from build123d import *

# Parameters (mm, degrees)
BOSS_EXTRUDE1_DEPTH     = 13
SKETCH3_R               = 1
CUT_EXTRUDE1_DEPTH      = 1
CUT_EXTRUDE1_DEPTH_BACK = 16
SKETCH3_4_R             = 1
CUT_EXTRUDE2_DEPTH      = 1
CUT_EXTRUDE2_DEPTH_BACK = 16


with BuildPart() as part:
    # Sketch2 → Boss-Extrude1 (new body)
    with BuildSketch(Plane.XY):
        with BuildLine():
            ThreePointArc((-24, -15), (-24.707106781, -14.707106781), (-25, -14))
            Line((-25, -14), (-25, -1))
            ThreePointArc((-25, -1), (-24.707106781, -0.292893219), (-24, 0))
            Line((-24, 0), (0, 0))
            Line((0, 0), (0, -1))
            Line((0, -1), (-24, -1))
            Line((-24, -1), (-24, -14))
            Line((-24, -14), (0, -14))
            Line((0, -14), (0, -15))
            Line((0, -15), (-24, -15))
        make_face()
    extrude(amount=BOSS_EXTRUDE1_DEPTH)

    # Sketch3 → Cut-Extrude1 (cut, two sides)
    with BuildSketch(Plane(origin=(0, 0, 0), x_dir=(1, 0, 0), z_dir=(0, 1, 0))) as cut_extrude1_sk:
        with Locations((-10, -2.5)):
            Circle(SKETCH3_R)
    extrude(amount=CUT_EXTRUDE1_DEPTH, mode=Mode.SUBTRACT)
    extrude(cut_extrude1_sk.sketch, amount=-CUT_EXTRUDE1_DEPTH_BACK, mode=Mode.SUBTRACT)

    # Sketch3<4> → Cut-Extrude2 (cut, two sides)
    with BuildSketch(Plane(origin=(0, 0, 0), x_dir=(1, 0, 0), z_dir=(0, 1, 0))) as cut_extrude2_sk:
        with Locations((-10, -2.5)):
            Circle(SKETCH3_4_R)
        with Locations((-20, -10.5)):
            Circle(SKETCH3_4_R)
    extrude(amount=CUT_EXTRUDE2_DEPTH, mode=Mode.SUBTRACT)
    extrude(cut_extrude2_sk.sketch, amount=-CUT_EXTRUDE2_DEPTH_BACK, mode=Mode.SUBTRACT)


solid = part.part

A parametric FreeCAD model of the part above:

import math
import FreeCAD as App
import Part
import Sketcher
from FreeCAD import Vector
Q = App.Units.Quantity

doc = App.newDocument("Part")
body = doc.addObject("PartDesign::Body", "Body")

sketch1 = body.newObject("Sketcher::SketchObject", "Sketch")
sketch1.AttachmentSupport = (doc.getObject("XY_Plane"), [""])
sketch1.MapMode = "FlatFace"
sketch1.addGeometry(Part.ArcOfCircle(Part.Circle(Vector(-24, -14, 0), Vector(0, 0, 1), 1), math.radians(-180), math.radians(-90)), False)
sketch1.addGeometry(Part.LineSegment(Vector(-24, -15, 0), Vector(0, -15, 0)), False)
sketch1.addGeometry(Part.LineSegment(Vector(0, -15, 0), Vector(0, -14, 0)), False)
sketch1.addGeometry(Part.LineSegment(Vector(0, -14, 0), Vector(-24, -14, 0)), False)
sketch1.addGeometry(Part.LineSegment(Vector(-24, -14, 0), Vector(-24, -1, 0)), False)
sketch1.addGeometry(Part.LineSegment(Vector(-24, -1, 0), Vector(0, -1, 0)), False)
sketch1.addGeometry(Part.LineSegment(Vector(0, -1, 0), Vector(0, 0, 0)), False)
sketch1.addGeometry(Part.LineSegment(Vector(0, 0, 0), Vector(-24, 0, 0)), False)
sketch1.addGeometry(Part.ArcOfCircle(Part.Circle(Vector(-24, -1, 0), Vector(0, 0, 1), 1), math.radians(90), math.radians(180)), False)
sketch1.addGeometry(Part.LineSegment(Vector(-25, -1, 0), Vector(-25, -14, 0)), False)
sketch1.addConstraint(Sketcher.Constraint("Tangent", 0, 2, 1, 1))
sketch1.addConstraint(Sketcher.Constraint("Coincident", 1, 2, 2, 1))
sketch1.addConstraint(Sketcher.Constraint("Coincident", 2, 2, 3, 1))
sketch1.addConstraint(Sketcher.Constraint("Coincident", 3, 2, 4, 1))
sketch1.addConstraint(Sketcher.Constraint("Coincident", 4, 2, 5, 1))
sketch1.addConstraint(Sketcher.Constraint("Coincident", 5, 2, 6, 1))
sketch1.addConstraint(Sketcher.Constraint("Coincident", 6, 2, 7, 1))
sketch1.addConstraint(Sketcher.Constraint("Tangent", 7, 2, 8, 1))
sketch1.addConstraint(Sketcher.Constraint("Tangent", 8, 2, 9, 1))
sketch1.addConstraint(Sketcher.Constraint("Tangent", 9, 2, 0, 1))
sketch1.addConstraint(Sketcher.Constraint("Horizontal", 1))
sketch1.addConstraint(Sketcher.Constraint("Vertical", 2))
sketch1.addConstraint(Sketcher.Constraint("Horizontal", 3))
sketch1.addConstraint(Sketcher.Constraint("Vertical", 4))
sketch1.addConstraint(Sketcher.Constraint("Horizontal", 5))
sketch1.addConstraint(Sketcher.Constraint("Vertical", 6))
sketch1.addConstraint(Sketcher.Constraint("Horizontal", 7))
sketch1.addConstraint(Sketcher.Constraint("Vertical", 9))
sketch1.addConstraint(Sketcher.Constraint("Coincident", 6, 2, -1, 1))
sketch1.addConstraint(Sketcher.Constraint("Coincident", 3, 2, 0, 3))
sketch1.addConstraint(Sketcher.Constraint("Coincident", 4, 2, 8, 3))
sketch1.addConstraint(Sketcher.Constraint("PointOnObject", 1, 2, -2))
sketch1.addConstraint(Sketcher.Constraint("Radius", 0, Q("1 mm")))
sketch1.addConstraint(Sketcher.Constraint("DistanceX", 1, 1, 1, 2, Q("24 mm")))
sketch1.addConstraint(Sketcher.Constraint("DistanceY", 4, 1, 4, 2, Q("13 mm")))
pad1 = body.newObject("PartDesign::Pad", "Pad")
pad1.Profile = sketch1
pad1.Length = 13

sketch2 = body.newObject("Sketcher::SketchObject", "Sketch001")
sketch2.AttachmentSupport = (doc.getObject("XZ_Plane"), [""])
sketch2.MapMode = "FlatFace"
sketch2.addGeometry(Part.Circle(Vector(-10, 2.5, 0), Vector(0, 0, 1), 1), False)
sketch2.addConstraint(Sketcher.Constraint("Diameter", 0, Q("2 mm")))
sketch2.addConstraint(Sketcher.Constraint("DistanceX", 0, 3, -1, 1, Q("10 mm")))
sketch2.addConstraint(Sketcher.Constraint("DistanceY", -1, 1, 0, 3, Q("2.5 mm")))
pocket1 = body.newObject("PartDesign::Pocket", "Pocket")
pocket1.Profile = sketch2
pocket1.Type = "ThroughAll"
pocket1.Midplane = True

sketch3 = body.newObject("Sketcher::SketchObject", "Sketch002")
sketch3.AttachmentSupport = (doc.getObject("XZ_Plane"), [""])
sketch3.MapMode = "FlatFace"
sketch3.addGeometry(Part.Circle(Vector(-10, 2.5, 0), Vector(0, 0, 1), 1), False)
sketch3.addGeometry(Part.Circle(Vector(-20, 10.5, 0), Vector(0, 0, 1), 1), False)
sketch3.addConstraint(Sketcher.Constraint("Equal", 0, 1))
sketch3.addConstraint(Sketcher.Constraint("Diameter", 0, Q("2 mm")))
sketch3.addConstraint(Sketcher.Constraint("DistanceX", 0, 3, -1, 1, Q("10 mm")))
sketch3.addConstraint(Sketcher.Constraint("DistanceX", 1, 3, -1, 1, Q("20 mm")))
sketch3.addConstraint(Sketcher.Constraint("DistanceY", 0, 3, 1, 3, Q("8 mm")))
sketch3.addConstraint(Sketcher.Constraint("DistanceY", -1, 1, 0, 3, Q("2.5 mm")))
pocket2 = body.newObject("PartDesign::Pocket", "Pocket001")
pocket2.Profile = sketch3
pocket2.Type = "ThroughAll"
pocket2.Midplane = True

doc.recompute()
